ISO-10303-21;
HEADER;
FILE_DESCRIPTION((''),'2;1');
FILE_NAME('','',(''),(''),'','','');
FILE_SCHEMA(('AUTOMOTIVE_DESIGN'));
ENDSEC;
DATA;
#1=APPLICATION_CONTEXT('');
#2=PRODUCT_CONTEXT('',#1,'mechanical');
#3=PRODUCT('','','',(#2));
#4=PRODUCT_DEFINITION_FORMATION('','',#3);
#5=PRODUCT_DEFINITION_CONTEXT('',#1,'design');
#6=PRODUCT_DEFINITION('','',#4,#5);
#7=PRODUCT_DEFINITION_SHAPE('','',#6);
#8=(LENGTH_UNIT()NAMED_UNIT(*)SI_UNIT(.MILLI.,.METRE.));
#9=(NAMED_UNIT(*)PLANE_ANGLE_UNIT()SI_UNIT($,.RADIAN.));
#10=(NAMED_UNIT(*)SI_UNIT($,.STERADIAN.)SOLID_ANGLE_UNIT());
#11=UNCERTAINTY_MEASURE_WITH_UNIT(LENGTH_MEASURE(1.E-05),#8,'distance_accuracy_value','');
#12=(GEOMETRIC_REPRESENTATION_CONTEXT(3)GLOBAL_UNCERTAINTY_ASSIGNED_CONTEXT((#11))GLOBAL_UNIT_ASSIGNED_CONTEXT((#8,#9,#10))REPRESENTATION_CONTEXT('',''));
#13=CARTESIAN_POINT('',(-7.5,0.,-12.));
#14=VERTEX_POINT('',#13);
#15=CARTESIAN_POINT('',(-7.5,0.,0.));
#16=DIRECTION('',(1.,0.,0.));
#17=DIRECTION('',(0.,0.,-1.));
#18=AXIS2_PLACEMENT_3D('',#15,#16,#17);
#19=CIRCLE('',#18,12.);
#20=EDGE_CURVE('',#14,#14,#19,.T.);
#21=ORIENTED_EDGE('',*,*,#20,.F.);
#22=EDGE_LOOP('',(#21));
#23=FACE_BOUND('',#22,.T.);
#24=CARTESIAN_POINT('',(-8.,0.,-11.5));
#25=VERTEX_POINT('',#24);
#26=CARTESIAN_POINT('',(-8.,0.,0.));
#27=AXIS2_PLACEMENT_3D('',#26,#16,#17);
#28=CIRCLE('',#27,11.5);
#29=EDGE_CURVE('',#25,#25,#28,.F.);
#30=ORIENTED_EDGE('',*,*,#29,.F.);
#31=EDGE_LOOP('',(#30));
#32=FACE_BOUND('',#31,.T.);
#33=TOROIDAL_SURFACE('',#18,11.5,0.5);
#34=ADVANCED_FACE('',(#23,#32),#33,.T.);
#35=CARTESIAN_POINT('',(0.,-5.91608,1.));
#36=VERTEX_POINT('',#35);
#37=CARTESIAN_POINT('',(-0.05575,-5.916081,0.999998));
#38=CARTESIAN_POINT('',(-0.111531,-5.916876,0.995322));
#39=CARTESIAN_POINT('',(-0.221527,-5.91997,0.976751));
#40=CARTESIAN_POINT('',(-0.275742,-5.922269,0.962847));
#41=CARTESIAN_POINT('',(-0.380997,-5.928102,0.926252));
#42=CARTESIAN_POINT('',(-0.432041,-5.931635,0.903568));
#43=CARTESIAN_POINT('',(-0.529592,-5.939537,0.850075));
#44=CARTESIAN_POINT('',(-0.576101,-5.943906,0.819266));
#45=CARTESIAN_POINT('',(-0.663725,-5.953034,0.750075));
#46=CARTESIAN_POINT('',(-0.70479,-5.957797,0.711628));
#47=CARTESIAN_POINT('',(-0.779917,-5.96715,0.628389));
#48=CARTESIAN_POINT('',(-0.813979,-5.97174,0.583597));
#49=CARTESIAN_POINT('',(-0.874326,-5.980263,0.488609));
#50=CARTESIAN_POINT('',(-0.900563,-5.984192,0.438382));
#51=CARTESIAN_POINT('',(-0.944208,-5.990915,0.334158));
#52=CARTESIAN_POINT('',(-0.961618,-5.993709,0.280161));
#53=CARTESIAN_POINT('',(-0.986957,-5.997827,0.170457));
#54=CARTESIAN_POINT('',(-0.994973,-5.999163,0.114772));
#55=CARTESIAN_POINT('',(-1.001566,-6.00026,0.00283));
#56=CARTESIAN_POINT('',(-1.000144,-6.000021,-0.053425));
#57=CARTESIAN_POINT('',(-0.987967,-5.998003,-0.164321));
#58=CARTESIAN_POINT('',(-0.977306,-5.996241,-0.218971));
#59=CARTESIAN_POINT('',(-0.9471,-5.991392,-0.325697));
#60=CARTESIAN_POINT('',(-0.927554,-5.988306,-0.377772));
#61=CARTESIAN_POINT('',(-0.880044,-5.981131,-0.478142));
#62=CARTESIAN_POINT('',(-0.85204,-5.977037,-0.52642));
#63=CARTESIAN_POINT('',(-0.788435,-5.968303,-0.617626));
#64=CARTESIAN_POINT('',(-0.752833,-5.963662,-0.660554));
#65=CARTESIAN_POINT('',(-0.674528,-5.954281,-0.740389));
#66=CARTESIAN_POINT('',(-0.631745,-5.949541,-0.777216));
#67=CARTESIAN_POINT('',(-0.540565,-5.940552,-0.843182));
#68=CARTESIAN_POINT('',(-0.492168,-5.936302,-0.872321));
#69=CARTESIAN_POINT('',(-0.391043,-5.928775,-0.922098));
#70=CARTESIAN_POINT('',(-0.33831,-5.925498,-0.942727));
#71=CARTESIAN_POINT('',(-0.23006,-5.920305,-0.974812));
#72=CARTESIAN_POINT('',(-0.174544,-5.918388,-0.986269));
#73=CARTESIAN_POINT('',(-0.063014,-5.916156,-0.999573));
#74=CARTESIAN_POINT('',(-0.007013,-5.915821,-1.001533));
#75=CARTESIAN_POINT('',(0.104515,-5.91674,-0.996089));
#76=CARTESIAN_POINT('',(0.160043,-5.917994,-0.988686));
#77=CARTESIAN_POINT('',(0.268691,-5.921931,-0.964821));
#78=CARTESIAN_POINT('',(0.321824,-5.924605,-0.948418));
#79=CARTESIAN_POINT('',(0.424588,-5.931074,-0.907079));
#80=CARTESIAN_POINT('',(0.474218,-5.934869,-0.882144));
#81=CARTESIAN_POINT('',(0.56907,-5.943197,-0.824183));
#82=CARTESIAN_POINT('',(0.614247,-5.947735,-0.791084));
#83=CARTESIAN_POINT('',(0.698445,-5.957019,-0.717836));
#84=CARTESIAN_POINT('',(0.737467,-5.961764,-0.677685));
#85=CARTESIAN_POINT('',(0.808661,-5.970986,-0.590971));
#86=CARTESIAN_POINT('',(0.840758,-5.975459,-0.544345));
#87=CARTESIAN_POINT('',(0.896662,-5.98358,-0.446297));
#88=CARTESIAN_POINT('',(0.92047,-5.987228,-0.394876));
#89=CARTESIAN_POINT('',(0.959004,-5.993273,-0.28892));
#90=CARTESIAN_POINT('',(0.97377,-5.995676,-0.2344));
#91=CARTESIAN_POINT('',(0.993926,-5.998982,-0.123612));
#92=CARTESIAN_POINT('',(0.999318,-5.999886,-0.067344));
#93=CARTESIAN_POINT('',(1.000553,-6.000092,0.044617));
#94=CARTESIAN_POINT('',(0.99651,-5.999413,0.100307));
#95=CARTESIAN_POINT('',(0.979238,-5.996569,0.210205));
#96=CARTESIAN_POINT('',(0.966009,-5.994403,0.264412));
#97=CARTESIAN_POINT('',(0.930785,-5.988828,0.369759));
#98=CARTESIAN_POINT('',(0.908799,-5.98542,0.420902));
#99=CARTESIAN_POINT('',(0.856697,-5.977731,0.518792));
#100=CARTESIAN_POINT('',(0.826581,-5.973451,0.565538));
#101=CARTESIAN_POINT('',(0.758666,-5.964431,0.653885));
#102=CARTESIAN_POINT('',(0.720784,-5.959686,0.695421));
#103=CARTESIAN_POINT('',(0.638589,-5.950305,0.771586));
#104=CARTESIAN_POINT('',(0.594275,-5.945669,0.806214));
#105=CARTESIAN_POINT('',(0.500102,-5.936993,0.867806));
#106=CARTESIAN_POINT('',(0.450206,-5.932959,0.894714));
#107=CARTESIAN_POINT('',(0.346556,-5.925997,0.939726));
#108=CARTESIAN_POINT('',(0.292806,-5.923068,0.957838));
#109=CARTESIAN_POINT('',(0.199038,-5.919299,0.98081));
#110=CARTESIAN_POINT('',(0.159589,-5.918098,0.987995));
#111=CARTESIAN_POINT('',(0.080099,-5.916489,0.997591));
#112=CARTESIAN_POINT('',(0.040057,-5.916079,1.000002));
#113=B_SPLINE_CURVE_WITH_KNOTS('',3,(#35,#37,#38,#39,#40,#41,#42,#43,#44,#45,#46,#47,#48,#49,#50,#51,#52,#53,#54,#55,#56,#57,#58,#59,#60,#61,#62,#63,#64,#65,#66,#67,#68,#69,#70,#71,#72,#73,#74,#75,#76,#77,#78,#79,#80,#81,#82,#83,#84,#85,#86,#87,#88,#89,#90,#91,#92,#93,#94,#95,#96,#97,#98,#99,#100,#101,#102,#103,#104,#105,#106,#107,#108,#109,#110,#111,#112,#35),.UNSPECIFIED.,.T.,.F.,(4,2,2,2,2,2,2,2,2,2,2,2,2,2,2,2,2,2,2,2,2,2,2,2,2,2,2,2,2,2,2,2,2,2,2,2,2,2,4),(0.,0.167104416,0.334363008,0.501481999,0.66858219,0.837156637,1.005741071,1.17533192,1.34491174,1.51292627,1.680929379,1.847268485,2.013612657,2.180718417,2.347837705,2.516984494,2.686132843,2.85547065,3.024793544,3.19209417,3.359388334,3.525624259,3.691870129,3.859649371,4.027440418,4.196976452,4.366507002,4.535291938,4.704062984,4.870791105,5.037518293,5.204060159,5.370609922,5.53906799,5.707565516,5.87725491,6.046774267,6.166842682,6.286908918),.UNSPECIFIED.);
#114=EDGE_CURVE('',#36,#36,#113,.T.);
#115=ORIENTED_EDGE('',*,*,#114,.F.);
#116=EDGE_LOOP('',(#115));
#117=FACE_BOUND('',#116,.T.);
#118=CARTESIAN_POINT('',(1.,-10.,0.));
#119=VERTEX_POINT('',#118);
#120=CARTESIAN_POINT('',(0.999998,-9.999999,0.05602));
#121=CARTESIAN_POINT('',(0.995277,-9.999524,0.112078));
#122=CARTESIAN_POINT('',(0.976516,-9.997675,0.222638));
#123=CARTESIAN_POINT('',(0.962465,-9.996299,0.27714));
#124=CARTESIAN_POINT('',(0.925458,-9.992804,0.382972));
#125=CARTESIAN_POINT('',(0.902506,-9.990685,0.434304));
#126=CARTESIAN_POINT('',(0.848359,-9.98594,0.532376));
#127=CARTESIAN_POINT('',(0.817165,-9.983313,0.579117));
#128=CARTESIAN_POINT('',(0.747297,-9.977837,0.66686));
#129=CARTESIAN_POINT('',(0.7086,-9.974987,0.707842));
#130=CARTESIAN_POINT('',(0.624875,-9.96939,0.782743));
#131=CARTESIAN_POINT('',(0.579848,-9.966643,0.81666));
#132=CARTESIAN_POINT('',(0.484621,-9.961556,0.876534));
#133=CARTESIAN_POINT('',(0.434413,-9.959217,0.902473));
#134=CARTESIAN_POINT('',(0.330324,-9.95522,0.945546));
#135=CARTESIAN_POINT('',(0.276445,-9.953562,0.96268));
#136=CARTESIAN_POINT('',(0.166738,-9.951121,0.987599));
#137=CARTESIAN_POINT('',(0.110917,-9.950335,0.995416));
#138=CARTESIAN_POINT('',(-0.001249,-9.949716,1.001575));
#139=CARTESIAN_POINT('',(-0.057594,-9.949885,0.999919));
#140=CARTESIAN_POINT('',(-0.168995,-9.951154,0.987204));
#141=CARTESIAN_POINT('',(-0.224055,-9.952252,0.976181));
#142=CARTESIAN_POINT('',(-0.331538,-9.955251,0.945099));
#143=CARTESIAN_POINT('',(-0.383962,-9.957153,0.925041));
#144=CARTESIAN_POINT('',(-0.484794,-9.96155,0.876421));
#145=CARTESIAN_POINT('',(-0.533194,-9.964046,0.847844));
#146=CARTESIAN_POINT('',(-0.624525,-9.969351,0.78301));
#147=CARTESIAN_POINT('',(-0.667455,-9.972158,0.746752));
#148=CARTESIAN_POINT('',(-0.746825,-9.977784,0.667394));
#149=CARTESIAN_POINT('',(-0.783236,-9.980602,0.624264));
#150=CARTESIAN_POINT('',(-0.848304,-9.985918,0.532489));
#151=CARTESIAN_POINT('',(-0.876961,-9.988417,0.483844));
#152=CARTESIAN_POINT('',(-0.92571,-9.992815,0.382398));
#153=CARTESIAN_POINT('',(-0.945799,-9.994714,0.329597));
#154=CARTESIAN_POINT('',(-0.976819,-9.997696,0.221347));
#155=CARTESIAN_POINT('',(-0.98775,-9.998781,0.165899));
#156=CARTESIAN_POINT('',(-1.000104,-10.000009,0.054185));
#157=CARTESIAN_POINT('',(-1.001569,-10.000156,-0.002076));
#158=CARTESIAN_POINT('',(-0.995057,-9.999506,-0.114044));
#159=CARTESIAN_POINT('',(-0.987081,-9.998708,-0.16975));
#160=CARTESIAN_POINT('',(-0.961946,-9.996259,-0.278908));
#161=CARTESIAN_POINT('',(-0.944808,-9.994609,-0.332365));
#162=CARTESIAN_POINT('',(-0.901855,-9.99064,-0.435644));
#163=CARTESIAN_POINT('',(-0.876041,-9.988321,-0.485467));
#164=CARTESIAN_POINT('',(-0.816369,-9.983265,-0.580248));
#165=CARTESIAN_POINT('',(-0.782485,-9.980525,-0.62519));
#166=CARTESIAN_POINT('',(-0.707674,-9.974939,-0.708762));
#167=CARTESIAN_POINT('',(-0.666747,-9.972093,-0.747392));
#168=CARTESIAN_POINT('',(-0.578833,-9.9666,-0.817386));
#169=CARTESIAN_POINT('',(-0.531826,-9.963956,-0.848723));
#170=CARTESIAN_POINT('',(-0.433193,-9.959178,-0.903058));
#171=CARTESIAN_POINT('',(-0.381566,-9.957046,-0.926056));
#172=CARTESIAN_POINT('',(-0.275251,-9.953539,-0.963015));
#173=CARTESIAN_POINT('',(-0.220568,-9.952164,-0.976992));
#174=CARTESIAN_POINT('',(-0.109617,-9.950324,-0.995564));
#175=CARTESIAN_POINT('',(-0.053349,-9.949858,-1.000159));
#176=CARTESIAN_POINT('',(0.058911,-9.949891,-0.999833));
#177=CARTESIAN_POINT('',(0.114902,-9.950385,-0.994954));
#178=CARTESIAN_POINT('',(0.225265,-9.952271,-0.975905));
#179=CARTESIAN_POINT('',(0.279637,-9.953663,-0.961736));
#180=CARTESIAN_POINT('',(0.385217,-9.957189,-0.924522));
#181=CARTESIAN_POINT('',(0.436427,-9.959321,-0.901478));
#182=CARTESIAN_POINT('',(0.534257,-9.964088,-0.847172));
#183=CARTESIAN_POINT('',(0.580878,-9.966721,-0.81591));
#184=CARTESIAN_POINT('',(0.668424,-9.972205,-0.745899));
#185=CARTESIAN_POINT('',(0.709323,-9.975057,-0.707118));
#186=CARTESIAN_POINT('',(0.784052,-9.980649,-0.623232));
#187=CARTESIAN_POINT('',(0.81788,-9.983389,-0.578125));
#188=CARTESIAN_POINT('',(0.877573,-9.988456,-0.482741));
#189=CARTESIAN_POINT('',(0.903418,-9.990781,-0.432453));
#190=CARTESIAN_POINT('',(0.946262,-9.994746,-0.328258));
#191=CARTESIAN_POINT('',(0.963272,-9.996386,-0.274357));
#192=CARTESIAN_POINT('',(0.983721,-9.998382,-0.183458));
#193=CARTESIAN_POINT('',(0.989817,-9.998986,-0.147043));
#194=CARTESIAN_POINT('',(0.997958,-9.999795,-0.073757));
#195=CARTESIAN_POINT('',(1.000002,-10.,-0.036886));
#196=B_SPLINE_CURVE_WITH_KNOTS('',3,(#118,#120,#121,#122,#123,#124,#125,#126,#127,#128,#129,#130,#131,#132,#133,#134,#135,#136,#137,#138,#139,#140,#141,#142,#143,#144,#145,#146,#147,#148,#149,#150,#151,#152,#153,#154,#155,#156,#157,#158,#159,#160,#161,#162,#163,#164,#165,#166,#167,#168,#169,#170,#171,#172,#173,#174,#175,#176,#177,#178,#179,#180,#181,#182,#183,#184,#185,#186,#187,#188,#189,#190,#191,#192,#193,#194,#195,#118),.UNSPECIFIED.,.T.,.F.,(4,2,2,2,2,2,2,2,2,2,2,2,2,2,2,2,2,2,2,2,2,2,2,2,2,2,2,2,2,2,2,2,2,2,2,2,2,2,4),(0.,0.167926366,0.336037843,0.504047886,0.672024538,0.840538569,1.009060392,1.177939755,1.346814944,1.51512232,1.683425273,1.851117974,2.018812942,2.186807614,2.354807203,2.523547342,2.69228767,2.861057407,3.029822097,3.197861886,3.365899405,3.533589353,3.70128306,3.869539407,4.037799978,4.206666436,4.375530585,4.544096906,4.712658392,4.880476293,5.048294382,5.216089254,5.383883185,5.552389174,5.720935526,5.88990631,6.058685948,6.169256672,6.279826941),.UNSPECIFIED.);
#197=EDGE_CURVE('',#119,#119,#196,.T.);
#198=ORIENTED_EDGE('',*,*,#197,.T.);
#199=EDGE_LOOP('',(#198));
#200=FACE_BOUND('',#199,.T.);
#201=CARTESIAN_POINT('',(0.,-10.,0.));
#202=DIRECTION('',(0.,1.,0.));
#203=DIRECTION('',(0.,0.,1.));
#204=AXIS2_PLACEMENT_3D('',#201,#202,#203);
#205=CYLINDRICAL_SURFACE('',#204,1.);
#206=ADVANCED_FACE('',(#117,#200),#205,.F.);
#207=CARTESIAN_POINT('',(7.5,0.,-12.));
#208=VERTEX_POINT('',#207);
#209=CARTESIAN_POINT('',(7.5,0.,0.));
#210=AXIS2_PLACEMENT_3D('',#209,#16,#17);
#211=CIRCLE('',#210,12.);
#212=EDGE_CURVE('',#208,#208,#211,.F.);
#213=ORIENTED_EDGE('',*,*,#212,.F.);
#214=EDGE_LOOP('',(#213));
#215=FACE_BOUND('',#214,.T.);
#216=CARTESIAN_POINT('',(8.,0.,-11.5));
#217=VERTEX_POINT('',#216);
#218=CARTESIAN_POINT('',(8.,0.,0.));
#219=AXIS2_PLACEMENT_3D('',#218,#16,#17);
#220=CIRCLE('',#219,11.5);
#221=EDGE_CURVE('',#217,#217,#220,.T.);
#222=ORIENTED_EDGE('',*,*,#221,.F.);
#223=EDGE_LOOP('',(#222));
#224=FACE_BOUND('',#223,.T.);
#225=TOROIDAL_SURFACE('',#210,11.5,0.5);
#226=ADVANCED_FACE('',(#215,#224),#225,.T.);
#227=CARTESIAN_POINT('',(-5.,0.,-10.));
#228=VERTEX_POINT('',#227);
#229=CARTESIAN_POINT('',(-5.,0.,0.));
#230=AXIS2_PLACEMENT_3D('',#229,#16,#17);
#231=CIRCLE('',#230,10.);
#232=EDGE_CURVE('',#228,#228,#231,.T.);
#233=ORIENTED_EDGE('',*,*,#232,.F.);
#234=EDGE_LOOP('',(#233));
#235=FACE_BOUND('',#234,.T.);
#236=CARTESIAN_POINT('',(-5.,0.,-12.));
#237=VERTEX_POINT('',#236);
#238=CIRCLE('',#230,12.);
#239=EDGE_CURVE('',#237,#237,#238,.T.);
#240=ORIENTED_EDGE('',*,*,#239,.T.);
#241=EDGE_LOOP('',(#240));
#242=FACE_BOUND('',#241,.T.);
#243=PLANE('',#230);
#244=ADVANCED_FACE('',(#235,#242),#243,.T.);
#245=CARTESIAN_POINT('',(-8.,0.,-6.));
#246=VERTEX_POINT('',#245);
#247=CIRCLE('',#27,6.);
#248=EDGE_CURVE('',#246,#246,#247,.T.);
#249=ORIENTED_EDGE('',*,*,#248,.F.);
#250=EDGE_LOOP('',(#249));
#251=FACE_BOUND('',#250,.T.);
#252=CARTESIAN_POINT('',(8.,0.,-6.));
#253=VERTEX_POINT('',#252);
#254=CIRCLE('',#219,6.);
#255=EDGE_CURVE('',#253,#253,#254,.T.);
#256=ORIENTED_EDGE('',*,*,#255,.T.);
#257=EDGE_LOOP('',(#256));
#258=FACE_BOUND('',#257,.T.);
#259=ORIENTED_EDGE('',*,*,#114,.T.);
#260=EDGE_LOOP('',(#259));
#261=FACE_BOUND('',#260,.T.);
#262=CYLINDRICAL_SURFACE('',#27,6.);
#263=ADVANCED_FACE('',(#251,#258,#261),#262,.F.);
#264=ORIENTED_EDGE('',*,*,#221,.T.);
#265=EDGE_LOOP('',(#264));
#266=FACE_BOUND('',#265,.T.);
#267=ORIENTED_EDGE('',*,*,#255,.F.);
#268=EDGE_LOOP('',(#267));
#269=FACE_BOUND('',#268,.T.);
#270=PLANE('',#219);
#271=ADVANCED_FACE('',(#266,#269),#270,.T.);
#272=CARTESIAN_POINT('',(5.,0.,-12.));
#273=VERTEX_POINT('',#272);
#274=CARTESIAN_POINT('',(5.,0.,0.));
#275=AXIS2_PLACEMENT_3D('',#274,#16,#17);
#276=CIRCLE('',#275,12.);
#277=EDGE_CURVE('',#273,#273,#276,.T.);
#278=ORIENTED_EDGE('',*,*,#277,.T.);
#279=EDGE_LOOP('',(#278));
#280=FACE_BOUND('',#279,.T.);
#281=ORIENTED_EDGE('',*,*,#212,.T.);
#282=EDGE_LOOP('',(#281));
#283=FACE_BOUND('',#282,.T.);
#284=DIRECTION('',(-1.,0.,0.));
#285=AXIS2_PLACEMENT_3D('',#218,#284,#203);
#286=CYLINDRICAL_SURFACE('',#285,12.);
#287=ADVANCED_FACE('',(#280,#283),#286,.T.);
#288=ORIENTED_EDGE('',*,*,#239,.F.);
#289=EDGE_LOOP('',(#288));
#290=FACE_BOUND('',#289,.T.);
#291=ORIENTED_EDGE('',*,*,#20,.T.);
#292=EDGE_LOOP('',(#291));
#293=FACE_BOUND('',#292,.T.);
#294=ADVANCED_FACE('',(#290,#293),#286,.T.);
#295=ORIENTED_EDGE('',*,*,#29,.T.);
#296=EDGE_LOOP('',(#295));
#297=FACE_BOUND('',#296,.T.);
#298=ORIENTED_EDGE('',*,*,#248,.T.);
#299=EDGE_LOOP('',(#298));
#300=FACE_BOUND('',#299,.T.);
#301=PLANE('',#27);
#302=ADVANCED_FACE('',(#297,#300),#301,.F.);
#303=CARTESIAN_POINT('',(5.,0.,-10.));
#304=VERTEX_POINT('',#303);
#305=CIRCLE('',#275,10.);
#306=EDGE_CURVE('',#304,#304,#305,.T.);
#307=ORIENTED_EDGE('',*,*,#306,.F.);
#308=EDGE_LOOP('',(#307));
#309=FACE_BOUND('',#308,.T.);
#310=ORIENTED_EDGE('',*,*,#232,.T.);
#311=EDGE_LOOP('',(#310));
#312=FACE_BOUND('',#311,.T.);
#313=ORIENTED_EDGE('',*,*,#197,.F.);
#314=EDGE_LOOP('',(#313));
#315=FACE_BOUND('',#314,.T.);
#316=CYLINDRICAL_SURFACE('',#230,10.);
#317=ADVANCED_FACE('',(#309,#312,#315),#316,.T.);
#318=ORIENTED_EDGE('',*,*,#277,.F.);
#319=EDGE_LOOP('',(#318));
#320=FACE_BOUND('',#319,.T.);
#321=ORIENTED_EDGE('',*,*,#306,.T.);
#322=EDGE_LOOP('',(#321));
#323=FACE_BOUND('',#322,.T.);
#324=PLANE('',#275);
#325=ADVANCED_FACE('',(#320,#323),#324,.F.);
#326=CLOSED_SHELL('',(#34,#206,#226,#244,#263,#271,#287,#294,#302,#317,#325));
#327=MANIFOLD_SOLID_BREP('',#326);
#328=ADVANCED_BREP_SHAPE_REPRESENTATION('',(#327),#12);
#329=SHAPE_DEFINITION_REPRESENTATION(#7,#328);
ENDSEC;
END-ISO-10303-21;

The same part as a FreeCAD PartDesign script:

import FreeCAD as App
import Part
import Sketcher


def edges_at(feature, points):
    """Names of the edges that pass closest to the given points."""
    edges = feature.Shape.Edges
    near = lambda p: min(range(len(edges)), key=lambda i: edges[i].distToShape(Part.Vertex(*p))[0])
    return sorted({f"Edge{near(p) + 1}" for p in points})

doc = App.newDocument("Part")
params = doc.addObject("Spreadsheet::Sheet", "Params")
for row, (alias, value) in enumerate([
    ("sketch1_diameter", "24 mm"),
    ("pad1_length", "16 mm"),
    ("sketch2_diameter", "24 mm"),
    ("sketch2_diameter2", "20 mm"),
    ("pocket1_length", "10 mm"),
    ("sketch3_diameter", "12 mm"),
    ("fillet_radius", "0.5 mm"),
    ("sketch4_diameter", "2 mm"),
    ("pocket3_length", "10 mm"),
], start=1):
    params.set(f"A{row}", alias)
    params.set(f"B{row}", "=" + value)
    params.setAlias(f"B{row}", alias)

body = doc.addObject("PartDesign::Body", "Body")

# Sketch on YZ plane
sketch1 = body.newObject("Sketcher::SketchObject", "Sketch")
sketch1.AttachmentSupport = (doc.getObject("YZ_Plane"), [""])
sketch1.MapMode = "FlatFace"
sketch1.addGeometry(Part.Circle(App.Vector(0, 0, 0), App.Vector(0, 0, 1), 12), False)
sketch1.addConstraint([
    Sketcher.Constraint("Coincident", 0, 3, -1, 1),
    Sketcher.Constraint("Diameter", 0, 24.0),
])
sketch1.setExpression("Constraints[1]", "Params.sketch1_diameter")
pad1 = body.newObject("PartDesign::Pad", "Pad")
pad1.Profile = sketch1
pad1.setExpression("Length", "Params.pad1_length")
pad1.Midplane = True

# Sketch on YZ plane
sketch2 = body.newObject("Sketcher::SketchObject", "Sketch001")
sketch2.AttachmentSupport = (doc.getObject("YZ_Plane"), [""])
sketch2.MapMode = "FlatFace"
sketch2.addGeometry([
    Part.Circle(App.Vector(0, 0, 0), App.Vector(0, 0, 1), 12),
    Part.Circle(App.Vector(0, 0, 0), App.Vector(0, 0, 1), 10),
], False)
sketch2.addConstraint([
    Sketcher.Constraint("Coincident", 0, 3, -1, 1),
    Sketcher.Constraint("Coincident", 1, 3, -1, 1),
    Sketcher.Constraint("Diameter", 0, 24.0),
    Sketcher.Constraint("Diameter", 1, 20.0),
])
sketch2.setExpression("Constraints[2]", "Params.sketch2_diameter")
sketch2.setExpression("Constraints[3]", "Params.sketch2_diameter2")
pocket1 = body.newObject("PartDesign::Pocket", "Pocket")
pocket1.Profile = sketch2
pocket1.setExpression("Length", "Params.pocket1_length")
pocket1.Midplane = True

# Sketch on YZ plane
sketch3 = body.newObject("Sketcher::SketchObject", "Sketch002")
sketch3.AttachmentSupport = (doc.getObject("YZ_Plane"), [""])
sketch3.MapMode = "FlatFace"
sketch3.addGeometry(Part.Circle(App.Vector(0, 0, 0), App.Vector(0, 0, 1), 6), False)
sketch3.addConstraint([
    Sketcher.Constraint("Coincident", 0, 3, -1, 1),
    Sketcher.Constraint("Diameter", 0, 12.0),
])
sketch3.setExpression("Constraints[1]", "Params.sketch3_diameter")
pocket2 = body.newObject("PartDesign::Pocket", "Pocket001")
pocket2.Profile = sketch3
pocket2.Type = "ThroughAll"
pocket2.Midplane = True
doc.recompute()

fillet = body.newObject("PartDesign::Fillet", "Fillet")
fillet.Base = (pocket2, edges_at(pocket2, [(-8, 0, 12), (8, 0, 12)]))
fillet.setExpression("Radius", "Params.fillet_radius")

# Sketch on XZ plane
sketch4 = body.newObject("Sketcher::SketchObject", "Sketch003")
sketch4.AttachmentSupport = (doc.getObject("XZ_Plane"), [""])
sketch4.MapMode = "FlatFace"
sketch4.addGeometry(Part.Circle(App.Vector(0, 0, 0), App.Vector(0, 0, 1), 1), False)
sketch4.addConstraint([
    Sketcher.Constraint("Coincident", 0, 3, -1, 1),
    Sketcher.Constraint("Diameter", 0, 2.0),
])
sketch4.setExpression("Constraints[1]", "Params.sketch4_diameter")
pocket3 = body.newObject("PartDesign::Pocket", "Pocket002")
pocket3.Profile = sketch4
pocket3.setExpression("Length", "Params.pocket3_length")
pocket3.Reversed = True

doc.recompute()
